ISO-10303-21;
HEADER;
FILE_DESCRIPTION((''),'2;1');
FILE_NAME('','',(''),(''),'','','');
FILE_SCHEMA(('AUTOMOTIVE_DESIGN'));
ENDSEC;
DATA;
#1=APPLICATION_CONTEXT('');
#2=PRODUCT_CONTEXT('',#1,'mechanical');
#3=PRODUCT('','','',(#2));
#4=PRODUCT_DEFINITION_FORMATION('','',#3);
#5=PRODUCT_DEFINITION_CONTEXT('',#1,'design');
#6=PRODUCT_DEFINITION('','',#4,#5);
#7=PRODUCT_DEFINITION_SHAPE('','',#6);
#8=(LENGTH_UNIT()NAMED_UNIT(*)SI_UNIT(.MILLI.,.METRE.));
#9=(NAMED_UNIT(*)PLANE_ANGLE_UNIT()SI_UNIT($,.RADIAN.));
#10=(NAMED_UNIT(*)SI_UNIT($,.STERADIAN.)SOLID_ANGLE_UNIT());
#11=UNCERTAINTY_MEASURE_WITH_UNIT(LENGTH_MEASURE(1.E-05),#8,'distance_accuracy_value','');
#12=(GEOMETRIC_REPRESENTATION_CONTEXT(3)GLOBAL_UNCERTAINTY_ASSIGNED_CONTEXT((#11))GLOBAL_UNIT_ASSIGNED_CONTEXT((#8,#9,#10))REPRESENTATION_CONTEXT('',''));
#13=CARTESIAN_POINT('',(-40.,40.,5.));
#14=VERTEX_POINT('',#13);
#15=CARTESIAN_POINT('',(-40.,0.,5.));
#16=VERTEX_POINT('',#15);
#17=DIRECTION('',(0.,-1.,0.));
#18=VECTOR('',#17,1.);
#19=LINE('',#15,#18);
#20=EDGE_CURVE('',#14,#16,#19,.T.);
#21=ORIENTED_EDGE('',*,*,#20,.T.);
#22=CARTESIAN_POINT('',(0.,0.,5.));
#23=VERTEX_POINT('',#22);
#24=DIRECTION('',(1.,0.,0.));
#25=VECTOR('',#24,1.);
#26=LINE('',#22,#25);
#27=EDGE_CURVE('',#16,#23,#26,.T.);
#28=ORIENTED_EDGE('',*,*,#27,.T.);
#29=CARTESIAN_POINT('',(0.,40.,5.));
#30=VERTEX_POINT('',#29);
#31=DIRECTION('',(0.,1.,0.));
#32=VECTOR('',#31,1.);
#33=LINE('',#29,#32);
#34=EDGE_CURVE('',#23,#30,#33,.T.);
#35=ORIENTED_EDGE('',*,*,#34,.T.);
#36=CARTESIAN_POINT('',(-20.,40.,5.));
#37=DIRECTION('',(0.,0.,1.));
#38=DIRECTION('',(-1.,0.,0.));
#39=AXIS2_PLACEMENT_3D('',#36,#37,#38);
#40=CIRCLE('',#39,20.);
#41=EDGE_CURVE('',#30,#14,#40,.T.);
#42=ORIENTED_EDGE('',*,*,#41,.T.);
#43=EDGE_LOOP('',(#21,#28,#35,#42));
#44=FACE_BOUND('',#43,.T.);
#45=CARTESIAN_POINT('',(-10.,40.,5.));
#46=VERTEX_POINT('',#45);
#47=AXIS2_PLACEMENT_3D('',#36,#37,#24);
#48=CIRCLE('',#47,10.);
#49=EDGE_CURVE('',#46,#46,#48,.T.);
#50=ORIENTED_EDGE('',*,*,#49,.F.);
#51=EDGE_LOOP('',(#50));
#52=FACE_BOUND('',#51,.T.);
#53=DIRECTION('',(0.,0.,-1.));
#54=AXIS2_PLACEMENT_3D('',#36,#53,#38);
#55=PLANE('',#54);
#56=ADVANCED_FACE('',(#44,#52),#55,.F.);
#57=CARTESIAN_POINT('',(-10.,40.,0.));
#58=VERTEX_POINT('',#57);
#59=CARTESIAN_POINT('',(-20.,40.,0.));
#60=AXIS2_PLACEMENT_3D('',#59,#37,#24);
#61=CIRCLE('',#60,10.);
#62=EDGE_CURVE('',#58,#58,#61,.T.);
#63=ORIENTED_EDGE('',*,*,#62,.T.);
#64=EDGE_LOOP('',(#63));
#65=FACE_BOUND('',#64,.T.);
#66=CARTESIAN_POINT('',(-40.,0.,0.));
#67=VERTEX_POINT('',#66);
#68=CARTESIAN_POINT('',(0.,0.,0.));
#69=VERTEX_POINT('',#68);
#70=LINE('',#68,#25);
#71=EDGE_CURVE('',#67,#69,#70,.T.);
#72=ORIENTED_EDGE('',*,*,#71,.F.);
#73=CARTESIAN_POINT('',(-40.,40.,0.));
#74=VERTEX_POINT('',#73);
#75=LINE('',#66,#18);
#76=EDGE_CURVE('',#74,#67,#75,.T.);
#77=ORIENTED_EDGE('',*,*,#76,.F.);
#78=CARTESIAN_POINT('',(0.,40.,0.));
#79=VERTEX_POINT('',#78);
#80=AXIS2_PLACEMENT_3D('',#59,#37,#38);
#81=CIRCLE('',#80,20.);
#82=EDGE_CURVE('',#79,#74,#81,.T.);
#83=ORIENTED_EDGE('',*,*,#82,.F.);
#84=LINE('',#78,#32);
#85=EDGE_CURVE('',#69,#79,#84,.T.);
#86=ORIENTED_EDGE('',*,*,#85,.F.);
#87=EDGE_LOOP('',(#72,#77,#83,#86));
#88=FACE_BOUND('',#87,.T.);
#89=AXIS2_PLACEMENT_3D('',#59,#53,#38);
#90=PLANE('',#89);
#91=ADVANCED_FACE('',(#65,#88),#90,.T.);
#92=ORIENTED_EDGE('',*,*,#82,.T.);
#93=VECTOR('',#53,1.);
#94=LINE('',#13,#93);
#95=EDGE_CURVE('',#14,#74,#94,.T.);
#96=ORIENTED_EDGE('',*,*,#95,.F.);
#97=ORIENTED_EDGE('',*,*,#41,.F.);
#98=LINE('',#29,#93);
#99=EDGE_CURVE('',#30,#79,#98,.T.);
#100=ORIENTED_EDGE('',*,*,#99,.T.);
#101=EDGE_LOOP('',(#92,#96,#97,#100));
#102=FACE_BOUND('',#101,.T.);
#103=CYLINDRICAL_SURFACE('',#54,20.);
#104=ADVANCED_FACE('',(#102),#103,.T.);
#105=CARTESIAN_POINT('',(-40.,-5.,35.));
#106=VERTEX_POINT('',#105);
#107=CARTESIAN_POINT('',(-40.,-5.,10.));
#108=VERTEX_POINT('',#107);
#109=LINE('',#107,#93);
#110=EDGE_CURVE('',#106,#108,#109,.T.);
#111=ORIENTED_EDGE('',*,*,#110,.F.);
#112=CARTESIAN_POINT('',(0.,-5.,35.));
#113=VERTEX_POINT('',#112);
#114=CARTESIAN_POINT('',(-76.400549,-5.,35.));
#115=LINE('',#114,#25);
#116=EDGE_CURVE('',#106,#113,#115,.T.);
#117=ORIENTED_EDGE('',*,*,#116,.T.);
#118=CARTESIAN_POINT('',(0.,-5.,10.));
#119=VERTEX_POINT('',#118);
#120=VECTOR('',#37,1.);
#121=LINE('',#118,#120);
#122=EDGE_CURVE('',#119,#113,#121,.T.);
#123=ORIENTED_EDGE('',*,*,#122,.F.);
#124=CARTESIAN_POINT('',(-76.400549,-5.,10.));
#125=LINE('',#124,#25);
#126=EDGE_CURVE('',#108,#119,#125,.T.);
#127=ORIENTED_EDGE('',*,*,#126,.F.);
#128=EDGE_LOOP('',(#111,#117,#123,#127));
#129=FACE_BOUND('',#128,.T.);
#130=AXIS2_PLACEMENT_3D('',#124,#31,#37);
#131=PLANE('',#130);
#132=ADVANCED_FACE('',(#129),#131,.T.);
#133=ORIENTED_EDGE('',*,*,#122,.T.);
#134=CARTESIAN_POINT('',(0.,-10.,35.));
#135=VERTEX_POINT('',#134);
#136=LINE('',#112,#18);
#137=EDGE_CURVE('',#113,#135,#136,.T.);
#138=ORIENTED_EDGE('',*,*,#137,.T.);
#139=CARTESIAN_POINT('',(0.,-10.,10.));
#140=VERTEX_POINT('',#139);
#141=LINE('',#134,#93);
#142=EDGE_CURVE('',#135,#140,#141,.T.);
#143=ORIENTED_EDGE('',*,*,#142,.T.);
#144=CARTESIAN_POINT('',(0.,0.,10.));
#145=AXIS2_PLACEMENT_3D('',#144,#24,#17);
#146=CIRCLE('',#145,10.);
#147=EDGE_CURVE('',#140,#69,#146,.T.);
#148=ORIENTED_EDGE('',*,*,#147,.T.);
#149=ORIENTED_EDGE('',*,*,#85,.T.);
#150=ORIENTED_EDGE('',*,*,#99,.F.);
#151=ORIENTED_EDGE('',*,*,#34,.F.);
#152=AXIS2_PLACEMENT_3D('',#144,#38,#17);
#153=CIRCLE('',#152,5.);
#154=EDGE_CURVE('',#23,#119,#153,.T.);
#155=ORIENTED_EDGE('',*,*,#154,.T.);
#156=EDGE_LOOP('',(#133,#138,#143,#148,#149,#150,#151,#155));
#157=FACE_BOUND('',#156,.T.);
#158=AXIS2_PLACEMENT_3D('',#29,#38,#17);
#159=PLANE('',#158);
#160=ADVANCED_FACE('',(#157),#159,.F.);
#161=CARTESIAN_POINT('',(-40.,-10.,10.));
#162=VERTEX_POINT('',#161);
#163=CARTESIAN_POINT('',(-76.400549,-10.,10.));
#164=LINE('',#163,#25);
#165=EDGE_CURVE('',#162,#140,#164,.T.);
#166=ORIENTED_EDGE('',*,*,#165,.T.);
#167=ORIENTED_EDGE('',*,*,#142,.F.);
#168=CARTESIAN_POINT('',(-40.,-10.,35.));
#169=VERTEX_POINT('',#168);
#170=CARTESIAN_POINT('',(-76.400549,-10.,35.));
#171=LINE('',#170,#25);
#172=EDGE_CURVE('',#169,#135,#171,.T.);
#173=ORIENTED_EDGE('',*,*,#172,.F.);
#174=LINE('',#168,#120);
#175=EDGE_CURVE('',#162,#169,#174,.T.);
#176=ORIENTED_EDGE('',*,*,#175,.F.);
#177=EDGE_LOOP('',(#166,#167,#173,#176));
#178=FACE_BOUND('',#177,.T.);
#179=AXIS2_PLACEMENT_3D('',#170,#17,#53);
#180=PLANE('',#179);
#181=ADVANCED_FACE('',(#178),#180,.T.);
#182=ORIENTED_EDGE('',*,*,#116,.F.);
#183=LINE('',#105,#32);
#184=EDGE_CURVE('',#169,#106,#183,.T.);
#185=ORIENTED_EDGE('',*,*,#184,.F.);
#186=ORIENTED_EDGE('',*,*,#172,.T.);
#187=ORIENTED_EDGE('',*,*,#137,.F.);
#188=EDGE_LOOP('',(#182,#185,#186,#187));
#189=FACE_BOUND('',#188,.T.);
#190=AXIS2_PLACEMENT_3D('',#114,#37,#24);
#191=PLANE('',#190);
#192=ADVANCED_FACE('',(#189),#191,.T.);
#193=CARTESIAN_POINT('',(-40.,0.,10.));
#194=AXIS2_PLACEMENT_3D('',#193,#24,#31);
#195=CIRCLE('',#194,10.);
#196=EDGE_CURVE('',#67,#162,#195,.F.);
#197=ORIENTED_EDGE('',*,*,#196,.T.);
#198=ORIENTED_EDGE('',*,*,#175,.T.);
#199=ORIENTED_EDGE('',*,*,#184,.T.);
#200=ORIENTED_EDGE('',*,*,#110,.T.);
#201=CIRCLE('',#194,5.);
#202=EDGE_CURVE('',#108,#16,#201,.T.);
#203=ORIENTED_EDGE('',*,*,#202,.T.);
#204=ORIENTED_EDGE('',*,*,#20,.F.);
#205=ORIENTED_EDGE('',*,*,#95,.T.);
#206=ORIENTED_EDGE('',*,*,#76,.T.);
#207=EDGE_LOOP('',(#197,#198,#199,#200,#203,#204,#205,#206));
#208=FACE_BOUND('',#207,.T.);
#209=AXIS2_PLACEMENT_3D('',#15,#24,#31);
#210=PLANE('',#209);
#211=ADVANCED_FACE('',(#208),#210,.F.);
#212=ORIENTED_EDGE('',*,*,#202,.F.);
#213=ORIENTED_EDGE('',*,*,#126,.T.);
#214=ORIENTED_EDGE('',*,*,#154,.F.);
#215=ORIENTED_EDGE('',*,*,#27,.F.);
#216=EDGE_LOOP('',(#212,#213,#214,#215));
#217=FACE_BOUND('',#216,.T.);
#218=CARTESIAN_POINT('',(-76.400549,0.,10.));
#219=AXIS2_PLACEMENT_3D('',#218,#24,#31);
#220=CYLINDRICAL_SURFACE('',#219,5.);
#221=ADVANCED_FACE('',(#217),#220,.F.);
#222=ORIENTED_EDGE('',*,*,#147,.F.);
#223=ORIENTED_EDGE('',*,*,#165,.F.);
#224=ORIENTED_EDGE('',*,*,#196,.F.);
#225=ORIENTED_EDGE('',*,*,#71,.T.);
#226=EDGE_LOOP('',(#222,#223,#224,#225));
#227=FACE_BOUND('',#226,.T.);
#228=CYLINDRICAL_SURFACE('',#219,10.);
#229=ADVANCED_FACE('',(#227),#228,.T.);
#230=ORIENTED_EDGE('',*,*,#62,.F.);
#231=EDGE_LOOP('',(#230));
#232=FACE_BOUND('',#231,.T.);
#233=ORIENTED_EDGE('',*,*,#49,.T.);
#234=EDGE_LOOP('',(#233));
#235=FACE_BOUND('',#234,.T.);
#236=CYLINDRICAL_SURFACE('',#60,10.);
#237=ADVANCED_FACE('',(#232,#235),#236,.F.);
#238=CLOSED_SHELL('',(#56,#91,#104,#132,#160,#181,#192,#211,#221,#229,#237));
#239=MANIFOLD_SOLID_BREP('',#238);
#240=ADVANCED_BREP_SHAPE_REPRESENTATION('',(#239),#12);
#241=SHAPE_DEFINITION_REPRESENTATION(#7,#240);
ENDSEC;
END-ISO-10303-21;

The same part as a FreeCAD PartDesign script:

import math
import FreeCAD as App
import Part
import Sketcher

doc = App.newDocument("Part")
body = doc.addObject("PartDesign::Body", "Body")

# Sketch on XY plane
sketch1 = body.newObject("Sketcher::SketchObject", "Sketch")
sketch1.AttachmentSupport = (doc.getObject("XY_Plane"), [""])
sketch1.MapMode = "FlatFace"
sketch1.addGeometry([
    Part.LineSegment(App.Vector(0, 0, 0), App.Vector(0, 40, 0)),
    Part.ArcOfCircle(Part.Circle(App.Vector(-20, 40, 0), App.Vector(0, 0, 1), 20), math.radians(0), math.radians(180)),
    Part.LineSegment(App.Vector(-40, 40, 0), App.Vector(-40, 0, 0)),
    Part.LineSegment(App.Vector(-40, 0, 0), App.Vector(0, 0, 0)),
], False)
sketch1.addConstraint([
    Sketcher.Constraint("Tangent", 0, 2, 1, 1),
    Sketcher.Constraint("Tangent", 1, 2, 2, 1),
    Sketcher.Constraint("Coincident", 2, 2, 3, 1),
    Sketcher.Constraint("Coincident", 3, 2, 0, 1),
    Sketcher.Constraint("Vertical", 0),
    Sketcher.Constraint("Vertical", 2),
    Sketcher.Constraint("Horizontal", 3),
    Sketcher.Constraint("Coincident", 3, 2, -1, 1),
    Sketcher.Constraint("Equal", 3, 0),
    Sketcher.Constraint("Radius", 1, 20.0),
])
pad1 = body.newObject("PartDesign::Pad", "Pad")
pad1.Profile = sketch1
pad1.Length = 5

# Sketch on XY plane
sketch2 = body.newObject("Sketcher::SketchObject", "Sketch001")
sketch2.AttachmentSupport = (doc.getObject("XY_Plane"), [""])
sketch2.MapMode = "FlatFace"
sketch2.AttachmentOffset = App.Placement(App.Vector(0, 0, 5), App.Rotation())
sketch2.addGeometry(Part.Circle(App.Vector(-20, 40, 0), App.Vector(0, 0, 1), 10), False)
sketch2.addConstraint([
    Sketcher.Constraint("Diameter", 0, 20.0),
    Sketcher.Constraint("DistanceX", 0, 3, -1, 1, 20.0),
    Sketcher.Constraint("DistanceY", -1, 1, 0, 3, 40.0),
])
pocket1 = body.newObject("PartDesign::Pocket", "Pocket")
pocket1.Profile = sketch2
pocket1.Type = "ThroughAll"

# Sketch on YZ plane
sketch3 = body.newObject("Sketcher::SketchObject", "Sketch002")
sketch3.AttachmentSupport = (doc.getObject("YZ_Plane"), [""])
sketch3.MapMode = "FlatFace"
sketch3.addGeometry([
    Part.LineSegment(App.Vector(-5, 10, 0), App.Vector(-5, 35, 0)),  # 0
    Part.LineSegment(App.Vector(-5, 35, 0), App.Vector(-10, 35, 0)),  # 1
    Part.LineSegment(App.Vector(-10, 35, 0), App.Vector(-10, 10, 0)),  # 2
    Part.ArcOfCircle(Part.Circle(App.Vector(0, 10, 0), App.Vector(0, 0, 1), 10), math.radians(180), math.radians(270)),  # 3
    Part.LineSegment(App.Vector(0, 0, 0), App.Vector(0, 5, 0)),  # 4
    Part.ArcOfCircle(Part.Circle(App.Vector(0, 10, 0), App.Vector(0, 0, 1), 5), math.radians(180), math.radians(270)),  # 5
], False)
sketch3.addConstraint([
    Sketcher.Constraint("Coincident", 0, 2, 1, 1),
    Sketcher.Constraint("Coincident", 1, 2, 2, 1),
    Sketcher.Constraint("Tangent", 2, 2, 3, 1),
    Sketcher.Constraint("Coincident", 3, 2, 4, 1),
    Sketcher.Constraint("Coincident", 4, 2, 5, 2),
    Sketcher.Constraint("Tangent", 5, 1, 0, 1),
    Sketcher.Constraint("Vertical", 0),
    Sketcher.Constraint("Horizontal", 1),
    Sketcher.Constraint("Vertical", 2),
    Sketcher.Constraint("Vertical", 4),
    Sketcher.Constraint("Coincident", 3, 2, -1, 1),
    Sketcher.Constraint("Coincident", 5, 3, 3, 3),
    Sketcher.Constraint("PointOnObject", 3, 3, -2),
    Sketcher.Constraint("Radius", 3, 10.0),
    Sketcher.Constraint("Radius", 5, 5.0),
    Sketcher.Constraint("DistanceY", 0, 1, 0, 2, 25.0),
])
pad2 = body.newObject("PartDesign::Pad", "Pad001")
pad2.Profile = sketch3
pad2.Length = 40
pad2.Reversed = True

doc.recompute()
